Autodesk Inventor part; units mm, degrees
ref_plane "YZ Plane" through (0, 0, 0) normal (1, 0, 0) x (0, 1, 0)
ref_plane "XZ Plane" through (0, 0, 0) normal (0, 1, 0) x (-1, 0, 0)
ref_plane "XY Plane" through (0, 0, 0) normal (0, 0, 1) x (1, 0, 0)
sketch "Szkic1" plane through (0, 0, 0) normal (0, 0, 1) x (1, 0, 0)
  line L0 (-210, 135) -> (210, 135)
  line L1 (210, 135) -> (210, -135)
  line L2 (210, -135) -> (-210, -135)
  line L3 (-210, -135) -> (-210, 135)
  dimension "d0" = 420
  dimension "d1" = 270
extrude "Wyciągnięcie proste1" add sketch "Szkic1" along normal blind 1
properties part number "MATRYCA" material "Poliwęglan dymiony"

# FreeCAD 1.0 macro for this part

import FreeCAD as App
import Part
import Sketcher
from FreeCAD import Vector

doc = App.newDocument("Part")
params = doc.addObject("Spreadsheet::Sheet", "Params")
for row, (alias, value) in enumerate([
    ("sketch1_width", "420 mm"),
    ("sketch1_height", "270 mm"),
    ("pad1_length", "1 mm"),
], start=1):
    params.set(f"A{row}", alias)
    params.set(f"B{row}", "=" + value)
    params.setAlias(f"B{row}", alias)

body = doc.addObject("PartDesign::Body", "Body")

# Sketch on XY plane
sketch1 = body.newObject("Sketcher::SketchObject", "Sketch")
sketch1.AttachmentSupport = (doc.getObject("XY_Plane"), [""])
sketch1.MapMode = "FlatFace"
sketch1.addGeometry([
    Part.LineSegment(Vector(210, 135, 0), Vector(-210, 135, 0)),
    Part.LineSegment(Vector(-210, 135, 0), Vector(-210, -135, 0)),
    Part.LineSegment(Vector(-210, -135, 0), Vector(210, -135, 0)),
    Part.LineSegment(Vector(210, -135, 0), Vector(210, 135, 0)),
], False)
sketch1.addConstraint([
    Sketcher.Constraint("Coincident", 0, 2, 1, 1),
    Sketcher.Constraint("Coincident", 1, 2, 2, 1),
    Sketcher.Constraint("Coincident", 2, 2, 3, 1),
    Sketcher.Constraint("Coincident", 3, 2, 0, 1),
    Sketcher.Constraint("Horizontal", 0),
    Sketcher.Constraint("Vertical", 1),
    Sketcher.Constraint("Horizontal", 2),
    Sketcher.Constraint("Vertical", 3),
    Sketcher.Constraint("Symmetric", 0, 2, 2, 2, -1, 1),
    Sketcher.Constraint("DistanceX", 0, 2, 0, 1, 420.0),
    Sketcher.Constraint("DistanceY", 1, 2, 1, 1, 270.0),
])
sketch1.setExpression("Constraints[9]", "Params.sketch1_width")
sketch1.setExpression("Constraints[10]", "Params.sketch1_height")
pad1 = body.newObject("PartDesign::Pad", "Pad")
pad1.Profile = sketch1
pad1.setExpression("Length", "Params.pad1_length")

doc.recompute()
